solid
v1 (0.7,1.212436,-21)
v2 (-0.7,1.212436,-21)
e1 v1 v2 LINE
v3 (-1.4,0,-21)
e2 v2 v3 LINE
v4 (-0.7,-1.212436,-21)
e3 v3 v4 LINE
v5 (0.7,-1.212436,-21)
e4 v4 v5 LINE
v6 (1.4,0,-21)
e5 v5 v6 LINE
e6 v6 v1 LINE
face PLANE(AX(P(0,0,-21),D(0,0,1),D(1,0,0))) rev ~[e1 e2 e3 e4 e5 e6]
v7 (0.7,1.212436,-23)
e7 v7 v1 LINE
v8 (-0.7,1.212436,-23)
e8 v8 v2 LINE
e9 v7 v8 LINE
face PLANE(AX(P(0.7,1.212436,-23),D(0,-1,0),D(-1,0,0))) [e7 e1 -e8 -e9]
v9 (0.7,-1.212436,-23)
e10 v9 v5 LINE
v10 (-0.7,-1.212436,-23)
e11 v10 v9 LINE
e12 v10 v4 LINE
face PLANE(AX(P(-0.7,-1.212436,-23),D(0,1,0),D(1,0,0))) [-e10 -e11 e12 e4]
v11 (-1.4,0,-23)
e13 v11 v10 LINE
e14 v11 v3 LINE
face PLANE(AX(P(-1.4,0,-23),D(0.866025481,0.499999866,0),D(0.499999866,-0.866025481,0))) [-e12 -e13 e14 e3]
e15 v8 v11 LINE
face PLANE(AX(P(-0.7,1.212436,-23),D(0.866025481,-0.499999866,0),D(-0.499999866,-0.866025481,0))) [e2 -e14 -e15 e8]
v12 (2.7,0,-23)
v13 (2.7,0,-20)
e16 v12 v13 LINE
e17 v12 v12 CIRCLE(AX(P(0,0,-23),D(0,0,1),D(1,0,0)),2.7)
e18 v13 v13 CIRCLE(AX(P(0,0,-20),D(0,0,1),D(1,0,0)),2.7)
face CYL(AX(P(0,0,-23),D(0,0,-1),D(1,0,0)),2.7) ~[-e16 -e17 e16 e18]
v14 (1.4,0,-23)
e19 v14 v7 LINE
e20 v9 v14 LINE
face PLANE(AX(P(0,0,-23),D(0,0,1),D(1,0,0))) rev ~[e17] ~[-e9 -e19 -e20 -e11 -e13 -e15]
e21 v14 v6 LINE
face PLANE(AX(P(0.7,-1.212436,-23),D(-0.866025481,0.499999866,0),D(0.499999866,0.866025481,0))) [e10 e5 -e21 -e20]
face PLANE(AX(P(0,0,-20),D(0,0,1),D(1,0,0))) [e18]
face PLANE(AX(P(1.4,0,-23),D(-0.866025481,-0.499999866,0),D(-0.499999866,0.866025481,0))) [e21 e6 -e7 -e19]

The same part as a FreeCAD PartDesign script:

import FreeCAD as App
import Part
import Sketcher
Q = App.Units.Quantity

doc = App.newDocument("Part")
params = doc.addObject("Spreadsheet::Sheet", "Params")
for row, (alias, value) in enumerate([
    ("sketch1_width", "1.4 mm"),
    ("sketch1_length", "1.4 mm"),
    ("pad1_length", "2 mm"),
    ("sketch2_diameter", "5.4 mm"),
    ("pad2_length", "3 mm"),
], start=1):
    params.set(f"A{row}", alias)
    params.set(f"B{row}", "=" + value)
    params.setAlias(f"B{row}", alias)

body = doc.addObject("PartDesign::Body", "Body")

sketch1 = doc.addObject("Sketcher::SketchObject", "Sketch")
body.addObject(sketch1)
sketch1.AttachmentSupport = (doc.XY_Plane, [""])
sketch1.MapMode = "FlatFace"
sketch1.AttachmentOffset = App.Placement(App.Vector(0, 0, -23), App.Rotation())
sketch1.addGeometry([
    Part.LineSegment(App.Vector(1.4, 0, 0), App.Vector(0.7, 1.2, 0)),
    Part.LineSegment(App.Vector(0.7, 1.2, 0), App.Vector(-0.7, 1.2, 0)),
    Part.LineSegment(App.Vector(-0.7, 1.2, 0), App.Vector(-1.4, 0, 0)),
    Part.LineSegment(App.Vector(-1.4, 0, 0), App.Vector(-0.7, -1.2, 0)),
    Part.LineSegment(App.Vector(-0.7, -1.2, 0), App.Vector(0.7, -1.2, 0)),
    Part.LineSegment(App.Vector(0.7, -1.2, 0), App.Vector(1.4, 0, 0)),
], False)
sketch1.addConstraint([
    Sketcher.Constraint("Coincident", 0, 2, 1, 1),
    Sketcher.Constraint("Coincident", 1, 2, 2, 1),
    Sketcher.Constraint("Coincident", 2, 2, 3, 1),
    Sketcher.Constraint("Coincident", 3, 2, 4, 1),
    Sketcher.Constraint("Coincident", 4, 2, 5, 1),
    Sketcher.Constraint("Coincident", 5, 2, 0, 1),
    Sketcher.Constraint("Horizontal", 1),
    Sketcher.Constraint("Horizontal", 4),
    Sketcher.Constraint("Symmetric", 0, 2, 3, 2, -1, 1),
    Sketcher.Constraint("Symmetric", 2, 2, 5, 2, -1, 1),
    Sketcher.Constraint("PointOnObject", 2, 2, -1),
    Sketcher.Constraint("Parallel", 2, 5),
    Sketcher.Constraint("Vertical", 1, 2, 3, 2),
    Sketcher.Constraint("Angle", 0, Q("119.999991 deg")),
    Sketcher.Constraint("DistanceX", 1, 2, 1, 1, 1.4),
    Sketcher.Constraint("Distance", 0, 1.4),
])
sketch1.setExpression("Constraints[14]", "Params.sketch1_width")
sketch1.setExpression("Constraints[15]", "Params.sketch1_length")
pad1 = doc.addObject("PartDesign::Pad", "Pad")
body.addObject(pad1)
pad1.Profile = sketch1
pad1.setExpression("Length", "Params.pad1_length")
body2 = doc.addObject("PartDesign::Body", "Body001")

sketch2 = doc.addObject("Sketcher::SketchObject", "Sketch001")
body2.addObject(sketch2)
sketch2.AttachmentSupport = (doc.getObject("XY_Plane001"), [""])
sketch2.MapMode = "FlatFace"
sketch2.AttachmentOffset = App.Placement(App.Vector(0, 0, -23), App.Rotation())
sketch2.addGeometry(Part.Circle(App.Vector(0, 0, 0), App.Vector(0, 0, 1), 2.7), False)
sketch2.addConstraint([
    Sketcher.Constraint("Coincident", 0, 3, -1, 1),
    Sketcher.Constraint("Diameter", 0, 5.4),
])
sketch2.setExpression("Constraints[1]", "Params.sketch2_diameter")
pad2 = doc.addObject("PartDesign::Pad", "Pad001")
body2.addObject(pad2)
pad2.Profile = sketch2
pad2.setExpression("Length", "Params.pad2_length")
doc.recompute()

boolean = doc.addObject("PartDesign::Boolean", "Boolean")
body2.addObject(boolean)
boolean.Type = "Cut"
boolean.addObjects([body])

doc.recompute()
